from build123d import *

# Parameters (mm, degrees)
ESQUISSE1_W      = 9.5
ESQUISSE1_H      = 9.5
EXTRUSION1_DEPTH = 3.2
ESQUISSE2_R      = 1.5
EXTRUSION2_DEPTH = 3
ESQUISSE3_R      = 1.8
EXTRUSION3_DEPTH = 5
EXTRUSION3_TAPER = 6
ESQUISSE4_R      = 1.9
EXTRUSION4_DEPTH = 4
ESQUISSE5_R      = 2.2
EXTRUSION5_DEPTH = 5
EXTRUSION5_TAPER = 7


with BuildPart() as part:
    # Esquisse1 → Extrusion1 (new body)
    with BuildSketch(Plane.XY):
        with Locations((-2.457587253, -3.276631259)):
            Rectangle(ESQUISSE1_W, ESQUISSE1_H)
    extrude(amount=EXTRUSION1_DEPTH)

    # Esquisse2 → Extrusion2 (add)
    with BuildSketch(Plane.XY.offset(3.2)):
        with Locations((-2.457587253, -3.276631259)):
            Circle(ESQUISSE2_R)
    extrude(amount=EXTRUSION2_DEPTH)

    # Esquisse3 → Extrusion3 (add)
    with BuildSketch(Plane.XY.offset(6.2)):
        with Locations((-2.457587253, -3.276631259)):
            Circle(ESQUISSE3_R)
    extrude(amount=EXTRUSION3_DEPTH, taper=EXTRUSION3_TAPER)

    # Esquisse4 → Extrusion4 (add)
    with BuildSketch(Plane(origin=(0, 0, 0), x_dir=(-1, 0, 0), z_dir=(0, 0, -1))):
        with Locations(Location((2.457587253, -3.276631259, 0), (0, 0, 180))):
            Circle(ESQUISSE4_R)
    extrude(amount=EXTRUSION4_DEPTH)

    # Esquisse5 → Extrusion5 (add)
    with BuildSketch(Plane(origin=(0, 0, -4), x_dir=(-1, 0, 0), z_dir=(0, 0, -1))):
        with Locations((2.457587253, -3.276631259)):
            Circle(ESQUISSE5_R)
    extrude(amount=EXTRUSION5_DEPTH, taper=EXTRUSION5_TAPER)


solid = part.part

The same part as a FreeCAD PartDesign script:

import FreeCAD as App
import Part
import Sketcher

doc = App.newDocument("Part")
body = doc.addObject("PartDesign::Body", "Body")

sketch1 = body.newObject("Sketcher::SketchObject", "Sketch")
sketch1.AttachmentSupport = (doc.getObject("XY_Plane"), [""])
sketch1.MapMode = "FlatFace"
sketch1.addGeometry([
    Part.LineSegment(App.Vector(-7, 1, 0), App.Vector(-7, -8, 0)),
    Part.LineSegment(App.Vector(-7, -8, 0), App.Vector(2, -8, 0)),
    Part.LineSegment(App.Vector(2, -8, 0), App.Vector(2, 1, 0)),
    Part.LineSegment(App.Vector(2, 1, 0), App.Vector(-7, 1, 0)),
], False)
sketch1.addConstraint([
    Sketcher.Constraint("Coincident", 0, 2, 1, 1),
    Sketcher.Constraint("Coincident", 1, 2, 2, 1),
    Sketcher.Constraint("Coincident", 2, 2, 3, 1),
    Sketcher.Constraint("Coincident", 3, 2, 0, 1),
    Sketcher.Constraint("Vertical", 0),
    Sketcher.Constraint("Horizontal", 1),
    Sketcher.Constraint("Vertical", 2),
    Sketcher.Constraint("Horizontal", 3),
    Sketcher.Constraint("Equal", 3, 0),
    Sketcher.Constraint("DistanceX", 1, 1, 1, 2, 9.5),
    Sketcher.Constraint("DistanceY", 0, 2, -1, 1, 8.026631),
    Sketcher.Constraint("DistanceX", 0, 2, -1, 1, 7.207587),
])
pad1 = body.newObject("PartDesign::Pad", "Pad")
pad1.Profile = sketch1
pad1.Length = 3.2

sketch2 = body.newObject("Sketcher::SketchObject", "Sketch001")
sketch2.AttachmentSupport = (doc.getObject("XY_Plane"), [""])
sketch2.MapMode = "FlatFace"
sketch2.AttachmentOffset = App.Placement(App.Vector(0, 0, 3.2), App.Rotation())
sketch2.addGeometry(Part.Circle(App.Vector(-2.5, -3.3, 0), App.Vector(0, 0, 1), 1.5), False)
sketch2.addConstraint([
    Sketcher.Constraint("Diameter", 0, 3.0),
    Sketcher.Constraint("DistanceY", 0, 3, -1, 1, 3.276631),
    Sketcher.Constraint("DistanceX", 0, 3, -1, 1, 2.457587),
])
pad2 = body.newObject("PartDesign::Pad", "Pad001")
pad2.Profile = sketch2
pad2.Length = 3

sketch3 = body.newObject("Sketcher::SketchObject", "Sketch002")
sketch3.AttachmentSupport = (doc.getObject("XY_Plane"), [""])
sketch3.MapMode = "FlatFace"
sketch3.AttachmentOffset = App.Placement(App.Vector(0, 0, 6.2), App.Rotation())
sketch3.addGeometry(Part.Circle(App.Vector(-2.5, -3.3, 0), App.Vector(0, 0, 1), 1.8), False)
sketch3.addConstraint([
    Sketcher.Constraint("Diameter", 0, 3.6),
    Sketcher.Constraint("DistanceY", 0, 3, -1, 1, 3.276631),
    Sketcher.Constraint("DistanceX", 0, 3, -1, 1, 2.457587),
])
pad3 = body.newObject("PartDesign::Pad", "Pad002")
pad3.Profile = sketch3
pad3.Length = 5
pad3.TaperAngle = -6

sketch4 = body.newObject("Sketcher::SketchObject", "Sketch003")
sketch4.AttachmentSupport = (doc.getObject("XY_Plane"), [""])
sketch4.MapMode = "FlatFace"
sketch4.addGeometry(Part.Circle(App.Vector(-2.5, -3.3, 0), App.Vector(0, 0, 1), 1.9), False)
sketch4.addConstraint([
    Sketcher.Constraint("Diameter", 0, 3.8),
    Sketcher.Constraint("DistanceY", 0, 3, -1, 1, 3.276631),
    Sketcher.Constraint("DistanceX", 0, 3, -1, 1, 2.457587),
])
pad4 = body.newObject("PartDesign::Pad", "Pad003")
pad4.Profile = sketch4
pad4.Length = 4
pad4.Reversed = True

sketch5 = body.newObject("Sketcher::SketchObject", "Sketch004")
sketch5.AttachmentSupport = (doc.getObject("XY_Plane"), [""])
sketch5.MapMode = "FlatFace"
sketch5.AttachmentOffset = App.Placement(App.Vector(0, 0, -4), App.Rotation())
sketch5.addGeometry(Part.Circle(App.Vector(-2.5, -3.3, 0), App.Vector(0, 0, 1), 2.2), False)
sketch5.addConstraint([
    Sketcher.Constraint("Diameter", 0, 4.4),
    Sketcher.Constraint("DistanceY", 0, 3, -1, 1, 3.276631),
    Sketcher.Constraint("DistanceX", 0, 3, -1, 1, 2.457587),
])
pad5 = body.newObject("PartDesign::Pad", "Pad004")
pad5.Profile = sketch5
pad5.Length = 5
pad5.Reversed = True
pad5.TaperAngle = -7

doc.recompute()
